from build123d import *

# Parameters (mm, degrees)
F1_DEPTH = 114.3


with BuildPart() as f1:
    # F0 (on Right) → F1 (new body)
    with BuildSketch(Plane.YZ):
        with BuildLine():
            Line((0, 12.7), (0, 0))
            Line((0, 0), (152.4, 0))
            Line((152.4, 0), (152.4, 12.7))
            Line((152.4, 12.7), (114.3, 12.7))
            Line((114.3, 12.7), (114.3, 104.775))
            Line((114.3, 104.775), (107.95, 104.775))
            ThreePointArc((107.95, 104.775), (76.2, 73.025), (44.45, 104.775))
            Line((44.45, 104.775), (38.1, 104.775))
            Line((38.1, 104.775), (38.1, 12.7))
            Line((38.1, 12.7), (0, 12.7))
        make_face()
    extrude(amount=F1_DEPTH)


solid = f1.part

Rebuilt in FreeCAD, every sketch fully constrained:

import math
import FreeCAD as App
import Part
import Sketcher
Q = App.Units.Quantity

doc = App.newDocument("Part")
params = doc.addObject("Spreadsheet::Sheet", "Params")
for row, (alias, value) in enumerate([
    ("sketch1_width", "6 in"),
    ("sketch1_radius", "1.25 in"),
    ("sketch1_width2", "1.5 in"),
    ("sketch1_height", "0.5 in"),
    ("sketch1_height2", "3.625 in"),
    ("pad1_length", "4.5 in"),
], start=1):
    params.set(f"A{row}", alias)
    params.set(f"B{row}", "=" + value)
    params.setAlias(f"B{row}", alias)

body = doc.addObject("PartDesign::Body", "Body")

# Sketch on YZ plane
sketch1 = body.newObject("Sketcher::SketchObject", "Sketch")
sketch1.AttachmentSupport = (doc.getObject("YZ_Plane"), [""])
sketch1.MapMode = "FlatFace"
sketch1.addGeometry(Part.LineSegment(App.Vector(0, 12.7, 0), App.Vector(0, 0, 0)), False)
sketch1.addGeometry(Part.LineSegment(App.Vector(0, 0, 0), App.Vector(152.4, 0, 0)), False)
sketch1.addGeometry(Part.LineSegment(App.Vector(152.4, 0, 0), App.Vector(152.4, 12.7, 0)), False)
sketch1.addGeometry(Part.LineSegment(App.Vector(152.4, 12.7, 0), App.Vector(114.3, 12.7, 0)), False)
sketch1.addGeometry(Part.LineSegment(App.Vector(114.3, 12.7, 0), App.Vector(114.3, 104.775, 0)), False)
sketch1.addGeometry(Part.LineSegment(App.Vector(114.3, 104.775, 0), App.Vector(107.95, 104.775, 0)), False)
sketch1.addGeometry(Part.ArcOfCircle(Part.Circle(App.Vector(76.2, 104.775, 0), App.Vector(0, 0, 1), 31.75), math.radians(180), math.radians(360)), False)
sketch1.addGeometry(Part.LineSegment(App.Vector(44.45, 104.775, 0), App.Vector(38.1, 104.775, 0)), False)
sketch1.addGeometry(Part.LineSegment(App.Vector(38.1, 104.775, 0), App.Vector(38.1, 12.7, 0)), False)
sketch1.addGeometry(Part.LineSegment(App.Vector(38.1, 12.7, 0), App.Vector(0, 12.7, 0)), False)
sketch1.addConstraint(Sketcher.Constraint("Coincident", 0, 2, 1, 1))
sketch1.addConstraint(Sketcher.Constraint("Coincident", 1, 2, 2, 1))
sketch1.addConstraint(Sketcher.Constraint("Coincident", 2, 2, 3, 1))
sketch1.addConstraint(Sketcher.Constraint("Coincident", 3, 2, 4, 1))
sketch1.addConstraint(Sketcher.Constraint("Coincident", 4, 2, 5, 1))
sketch1.addConstraint(Sketcher.Constraint("Coincident", 5, 2, 6, 2))
sketch1.addConstraint(Sketcher.Constraint("Coincident", 6, 1, 7, 1))
sketch1.addConstraint(Sketcher.Constraint("Coincident", 7, 2, 8, 1))
sketch1.addConstraint(Sketcher.Constraint("Coincident", 8, 2, 9, 1))
sketch1.addConstraint(Sketcher.Constraint("Coincident", 9, 2, 0, 1))
sketch1.addConstraint(Sketcher.Constraint("Vertical", 0))
sketch1.addConstraint(Sketcher.Constraint("Horizontal", 1))
sketch1.addConstraint(Sketcher.Constraint("Vertical", 2))
sketch1.addConstraint(Sketcher.Constraint("Horizontal", 3))
sketch1.addConstraint(Sketcher.Constraint("Vertical", 4))
sketch1.addConstraint(Sketcher.Constraint("Horizontal", 5))
sketch1.addConstraint(Sketcher.Constraint("Horizontal", 7))
sketch1.addConstraint(Sketcher.Constraint("Vertical", 8))
sketch1.addConstraint(Sketcher.Constraint("Horizontal", 9))
sketch1.addConstraint(Sketcher.Constraint("Coincident", 0, 2, -1, 1))
sketch1.addConstraint(Sketcher.Constraint("Horizontal", 6, 3, 4, 2))
sketch1.addConstraint(Sketcher.Constraint("Horizontal", 5, 2, 6, 1))
sketch1.addConstraint(Sketcher.Constraint("Horizontal", 3, 2, 8, 2))
sketch1.addConstraint(Sketcher.Constraint("Equal", 5, 7))
sketch1.addConstraint(Sketcher.Constraint("Equal", 3, 9))
sketch1.addConstraint(Sketcher.Constraint("DistanceX", 1, 1, 1, 2, Q("6 in")))
sketch1.addConstraint(Sketcher.Constraint("Radius", 6, Q("1.25 in")))
sketch1.addConstraint(Sketcher.Constraint("DistanceX", 3, 2, 3, 1, Q("1.5 in")))
sketch1.addConstraint(Sketcher.Constraint("DistanceY", 0, 2, 0, 1, Q("0.5 in")))
sketch1.addConstraint(Sketcher.Constraint("DistanceY", 4, 1, 4, 2, Q("3.625 in")))
sketch1.setExpression("Constraints[25]", "Params.sketch1_width")
sketch1.setExpression("Constraints[26]", "Params.sketch1_radius")
sketch1.setExpression("Constraints[27]", "Params.sketch1_width2")
sketch1.setExpression("Constraints[28]", "Params.sketch1_height")
sketch1.setExpression("Constraints[29]", "Params.sketch1_height2")
pad1 = body.newObject("PartDesign::Pad", "Pad")
pad1.Profile = sketch1
pad1.setExpression("Length", "Params.pad1_length")

doc.recompute()
